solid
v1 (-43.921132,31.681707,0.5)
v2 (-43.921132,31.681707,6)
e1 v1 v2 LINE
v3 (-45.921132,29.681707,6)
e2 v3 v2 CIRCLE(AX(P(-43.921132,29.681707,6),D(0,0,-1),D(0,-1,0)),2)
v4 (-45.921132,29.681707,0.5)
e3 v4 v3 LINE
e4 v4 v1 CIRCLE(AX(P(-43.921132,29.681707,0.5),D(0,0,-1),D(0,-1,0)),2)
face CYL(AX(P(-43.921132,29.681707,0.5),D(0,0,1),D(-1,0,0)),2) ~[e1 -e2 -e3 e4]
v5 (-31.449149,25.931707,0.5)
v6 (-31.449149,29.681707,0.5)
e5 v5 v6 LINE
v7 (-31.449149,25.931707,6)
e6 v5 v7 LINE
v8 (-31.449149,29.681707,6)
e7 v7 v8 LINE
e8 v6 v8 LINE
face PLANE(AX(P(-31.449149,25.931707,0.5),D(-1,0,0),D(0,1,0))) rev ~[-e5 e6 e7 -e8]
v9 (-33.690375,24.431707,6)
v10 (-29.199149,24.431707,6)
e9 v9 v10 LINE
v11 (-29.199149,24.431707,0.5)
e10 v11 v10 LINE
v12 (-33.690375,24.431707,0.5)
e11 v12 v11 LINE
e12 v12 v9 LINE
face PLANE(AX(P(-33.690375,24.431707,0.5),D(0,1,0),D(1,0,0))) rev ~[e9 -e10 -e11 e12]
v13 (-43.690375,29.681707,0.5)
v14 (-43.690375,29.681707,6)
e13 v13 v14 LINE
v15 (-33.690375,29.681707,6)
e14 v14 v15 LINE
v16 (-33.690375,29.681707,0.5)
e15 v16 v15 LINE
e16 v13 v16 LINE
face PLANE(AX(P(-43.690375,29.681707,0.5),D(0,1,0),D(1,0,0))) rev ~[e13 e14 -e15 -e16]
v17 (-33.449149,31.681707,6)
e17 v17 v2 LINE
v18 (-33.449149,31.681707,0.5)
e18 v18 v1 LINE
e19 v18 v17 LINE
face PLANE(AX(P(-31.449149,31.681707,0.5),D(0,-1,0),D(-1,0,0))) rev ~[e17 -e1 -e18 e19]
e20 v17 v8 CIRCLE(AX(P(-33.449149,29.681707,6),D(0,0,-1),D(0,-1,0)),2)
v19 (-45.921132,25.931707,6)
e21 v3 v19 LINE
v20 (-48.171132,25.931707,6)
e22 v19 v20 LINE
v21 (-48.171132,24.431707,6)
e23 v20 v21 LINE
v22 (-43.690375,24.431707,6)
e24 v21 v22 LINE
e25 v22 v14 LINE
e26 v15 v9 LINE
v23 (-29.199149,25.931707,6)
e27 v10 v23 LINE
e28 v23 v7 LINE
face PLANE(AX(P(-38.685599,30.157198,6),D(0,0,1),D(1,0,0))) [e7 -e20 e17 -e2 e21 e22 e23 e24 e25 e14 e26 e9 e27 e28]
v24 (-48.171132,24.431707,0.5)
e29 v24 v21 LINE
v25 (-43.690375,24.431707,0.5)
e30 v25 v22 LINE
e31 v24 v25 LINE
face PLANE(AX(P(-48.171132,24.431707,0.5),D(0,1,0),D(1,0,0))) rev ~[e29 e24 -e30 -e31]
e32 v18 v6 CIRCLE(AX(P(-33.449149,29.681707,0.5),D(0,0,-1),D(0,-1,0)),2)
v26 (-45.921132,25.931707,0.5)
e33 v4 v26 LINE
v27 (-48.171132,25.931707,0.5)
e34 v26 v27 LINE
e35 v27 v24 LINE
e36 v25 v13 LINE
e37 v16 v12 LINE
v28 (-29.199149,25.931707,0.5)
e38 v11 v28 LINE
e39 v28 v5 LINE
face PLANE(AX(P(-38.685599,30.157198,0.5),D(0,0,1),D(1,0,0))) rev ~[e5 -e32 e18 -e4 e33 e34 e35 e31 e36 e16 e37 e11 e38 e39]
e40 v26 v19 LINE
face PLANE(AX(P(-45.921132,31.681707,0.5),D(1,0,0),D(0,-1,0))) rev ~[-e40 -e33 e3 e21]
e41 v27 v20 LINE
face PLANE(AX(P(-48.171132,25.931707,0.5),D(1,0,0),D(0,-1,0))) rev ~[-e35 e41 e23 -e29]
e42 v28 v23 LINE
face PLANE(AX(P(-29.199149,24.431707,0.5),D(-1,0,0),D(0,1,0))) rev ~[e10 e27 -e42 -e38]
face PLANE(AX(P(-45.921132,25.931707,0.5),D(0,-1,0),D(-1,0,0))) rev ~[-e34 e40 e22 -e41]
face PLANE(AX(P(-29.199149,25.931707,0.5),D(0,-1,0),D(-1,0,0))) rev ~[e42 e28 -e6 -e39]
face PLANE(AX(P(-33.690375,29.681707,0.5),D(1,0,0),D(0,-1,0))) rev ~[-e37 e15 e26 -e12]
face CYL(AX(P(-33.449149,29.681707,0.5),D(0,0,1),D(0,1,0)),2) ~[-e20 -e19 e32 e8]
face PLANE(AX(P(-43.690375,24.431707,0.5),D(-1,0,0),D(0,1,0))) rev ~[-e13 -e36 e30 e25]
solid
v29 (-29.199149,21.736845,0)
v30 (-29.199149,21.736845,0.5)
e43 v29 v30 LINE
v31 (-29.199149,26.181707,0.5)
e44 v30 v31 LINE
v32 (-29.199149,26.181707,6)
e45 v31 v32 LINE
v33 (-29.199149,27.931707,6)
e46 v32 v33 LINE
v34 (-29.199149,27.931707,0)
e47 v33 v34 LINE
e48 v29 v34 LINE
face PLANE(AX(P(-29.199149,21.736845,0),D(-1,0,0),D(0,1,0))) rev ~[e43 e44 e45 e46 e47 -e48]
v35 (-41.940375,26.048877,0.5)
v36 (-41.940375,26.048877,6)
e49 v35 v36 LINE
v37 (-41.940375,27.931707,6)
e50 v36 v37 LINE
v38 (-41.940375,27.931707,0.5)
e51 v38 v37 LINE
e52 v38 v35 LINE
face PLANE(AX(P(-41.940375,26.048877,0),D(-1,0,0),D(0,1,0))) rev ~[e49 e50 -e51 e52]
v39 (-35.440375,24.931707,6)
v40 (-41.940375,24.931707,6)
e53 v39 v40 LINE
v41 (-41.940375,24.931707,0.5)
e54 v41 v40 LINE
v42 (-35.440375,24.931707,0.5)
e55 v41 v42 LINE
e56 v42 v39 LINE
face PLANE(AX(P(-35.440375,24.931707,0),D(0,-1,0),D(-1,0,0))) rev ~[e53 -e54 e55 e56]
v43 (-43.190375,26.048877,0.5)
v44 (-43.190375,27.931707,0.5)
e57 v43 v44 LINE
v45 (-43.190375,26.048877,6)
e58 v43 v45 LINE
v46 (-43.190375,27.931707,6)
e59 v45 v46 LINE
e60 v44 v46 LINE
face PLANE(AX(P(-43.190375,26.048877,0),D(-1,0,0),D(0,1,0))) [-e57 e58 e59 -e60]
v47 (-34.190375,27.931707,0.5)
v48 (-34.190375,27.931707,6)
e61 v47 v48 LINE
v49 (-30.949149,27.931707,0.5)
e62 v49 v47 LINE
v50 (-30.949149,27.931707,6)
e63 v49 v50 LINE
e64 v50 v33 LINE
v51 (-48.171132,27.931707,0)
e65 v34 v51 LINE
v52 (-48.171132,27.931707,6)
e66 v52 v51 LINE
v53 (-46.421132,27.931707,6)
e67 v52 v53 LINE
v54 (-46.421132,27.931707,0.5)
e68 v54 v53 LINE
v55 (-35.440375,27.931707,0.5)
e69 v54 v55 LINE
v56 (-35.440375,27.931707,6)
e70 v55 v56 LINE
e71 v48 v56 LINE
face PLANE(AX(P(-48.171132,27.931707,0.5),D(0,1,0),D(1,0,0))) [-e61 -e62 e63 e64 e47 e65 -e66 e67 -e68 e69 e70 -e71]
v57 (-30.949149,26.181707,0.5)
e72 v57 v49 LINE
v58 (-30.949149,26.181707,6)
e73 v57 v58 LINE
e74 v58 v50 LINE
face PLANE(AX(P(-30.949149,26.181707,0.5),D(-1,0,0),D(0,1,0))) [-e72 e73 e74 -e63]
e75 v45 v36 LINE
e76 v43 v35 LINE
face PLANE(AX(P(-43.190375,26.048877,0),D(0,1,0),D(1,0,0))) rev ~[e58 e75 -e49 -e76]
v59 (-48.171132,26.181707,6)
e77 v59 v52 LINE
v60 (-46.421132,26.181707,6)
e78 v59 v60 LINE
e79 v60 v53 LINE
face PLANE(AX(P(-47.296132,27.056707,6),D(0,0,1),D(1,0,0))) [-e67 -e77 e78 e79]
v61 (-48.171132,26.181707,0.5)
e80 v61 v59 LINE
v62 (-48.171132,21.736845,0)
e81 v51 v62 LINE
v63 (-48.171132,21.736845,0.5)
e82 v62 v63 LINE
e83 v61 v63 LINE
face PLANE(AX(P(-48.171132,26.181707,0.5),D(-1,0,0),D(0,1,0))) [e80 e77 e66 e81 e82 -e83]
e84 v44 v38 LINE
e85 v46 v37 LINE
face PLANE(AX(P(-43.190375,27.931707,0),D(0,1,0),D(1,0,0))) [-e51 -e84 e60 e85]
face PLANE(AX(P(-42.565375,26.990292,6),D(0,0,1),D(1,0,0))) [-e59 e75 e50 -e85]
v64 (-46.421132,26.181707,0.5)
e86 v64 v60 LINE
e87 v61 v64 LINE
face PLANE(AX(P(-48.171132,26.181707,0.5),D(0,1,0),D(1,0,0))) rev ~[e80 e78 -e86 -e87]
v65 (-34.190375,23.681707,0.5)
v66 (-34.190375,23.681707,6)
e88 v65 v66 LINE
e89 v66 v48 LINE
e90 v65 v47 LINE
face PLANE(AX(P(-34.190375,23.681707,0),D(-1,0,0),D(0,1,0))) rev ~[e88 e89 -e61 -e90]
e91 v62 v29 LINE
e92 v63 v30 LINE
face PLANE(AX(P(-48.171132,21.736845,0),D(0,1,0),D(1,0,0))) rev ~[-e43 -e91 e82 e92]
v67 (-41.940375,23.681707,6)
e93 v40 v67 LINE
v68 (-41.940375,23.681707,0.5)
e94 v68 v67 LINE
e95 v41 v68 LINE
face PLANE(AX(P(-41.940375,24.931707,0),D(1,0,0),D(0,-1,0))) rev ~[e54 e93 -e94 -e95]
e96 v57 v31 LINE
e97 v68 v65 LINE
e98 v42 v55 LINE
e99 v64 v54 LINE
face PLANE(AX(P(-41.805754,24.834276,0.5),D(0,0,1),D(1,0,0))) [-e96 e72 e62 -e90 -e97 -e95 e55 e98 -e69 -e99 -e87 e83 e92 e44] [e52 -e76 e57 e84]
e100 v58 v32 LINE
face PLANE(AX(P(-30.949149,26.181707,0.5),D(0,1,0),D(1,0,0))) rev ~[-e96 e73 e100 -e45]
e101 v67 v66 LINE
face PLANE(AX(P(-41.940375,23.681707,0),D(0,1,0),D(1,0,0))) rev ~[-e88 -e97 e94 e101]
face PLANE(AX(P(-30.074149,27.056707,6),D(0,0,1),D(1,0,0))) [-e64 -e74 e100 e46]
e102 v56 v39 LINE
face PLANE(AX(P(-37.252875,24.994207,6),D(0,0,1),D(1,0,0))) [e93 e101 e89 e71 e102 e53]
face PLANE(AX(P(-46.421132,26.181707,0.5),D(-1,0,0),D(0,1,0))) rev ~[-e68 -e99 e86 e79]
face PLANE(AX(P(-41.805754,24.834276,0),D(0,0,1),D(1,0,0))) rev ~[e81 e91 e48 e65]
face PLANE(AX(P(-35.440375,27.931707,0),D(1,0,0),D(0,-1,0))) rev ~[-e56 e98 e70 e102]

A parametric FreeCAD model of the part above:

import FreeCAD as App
import Part
import Sketcher


def edges_at(feature, points):
    """Names of the edges that pass closest to the given points."""
    edges = feature.Shape.Edges
    near = lambda p: min(range(len(edges)), key=lambda i: edges[i].distToShape(Part.Vertex(*p))[0])
    return sorted({f"Edge{near(p) + 1}" for p in points})


def add_polygon(sketch, points):
    """Adds a closed chain of lines whose ends are joined by coincident constraints."""
    first, n = sketch.GeometryCount, len(points)
    for a, b in zip(points, points[1:] + points[:1]):
        sketch.addGeometry(Part.LineSegment(App.Vector(*a, 0), App.Vector(*b, 0)), False)
    for i in range(n):
        sketch.addConstraint(Sketcher.Constraint("Coincident", first + i, 2, first + (i + 1) % n, 1))

doc = App.newDocument("Part")
body = doc.addObject("PartDesign::Body", "Body")

sketch1 = body.newObject("Sketcher::SketchObject", "Sketch")
sketch1.AttachmentSupport = (doc.getObject("XY_Plane"), [""])
sketch1.MapMode = "FlatFace"
add_polygon(sketch1, [(-35.440375, 27.931707), (-41.940375, 27.931707), (-41.940375, 24.931707), (-35.440375, 24.931707)])
sketch1.addConstraint(Sketcher.Constraint("Horizontal", 0))
sketch1.addConstraint(Sketcher.Constraint("Vertical", 1))
sketch1.addConstraint(Sketcher.Constraint("Horizontal", 2))
sketch1.addConstraint(Sketcher.Constraint("Vertical", 3))
sketch1.addConstraint(Sketcher.Constraint("DistanceY", 1, 2, 1, 1, 3.0))
sketch1.addConstraint(Sketcher.Constraint("DistanceX", 0, 2, 0, 1, 6.5))
sketch1.addConstraint(Sketcher.Constraint("DistanceX", 0, 2, -1, 1, 41.940375))
sketch1.addConstraint(Sketcher.Constraint("DistanceY", -1, 1, 0, 2, 27.931707))
pad1 = body.newObject("PartDesign::Pad", "Pad")
pad1.Profile = sketch1
pad1.Length = 0.5

sketch2 = body.newObject("Sketcher::SketchObject", "Sketch001")
sketch2.AttachmentSupport = (doc.getObject("XY_Plane"), [""])
sketch2.MapMode = "FlatFace"
add_polygon(sketch2, [(-34.190375, 27.931707), (-35.440375, 27.931707), (-35.440375, 24.931707), (-41.940375, 24.931707), (-41.940375, 23.681707), (-34.190375, 23.681707)])
add_polygon(sketch2, [(-43.190375, 27.931707), (-43.190375, 26.048877), (-41.940375, 26.048877), (-41.940375, 27.931707)])
sketch2.addConstraint(Sketcher.Constraint("Horizontal", 0))
sketch2.addConstraint(Sketcher.Constraint("Vertical", 1))
sketch2.addConstraint(Sketcher.Constraint("Horizontal", 2))
sketch2.addConstraint(Sketcher.Constraint("Vertical", 3))
sketch2.addConstraint(Sketcher.Constraint("Horizontal", 4))
sketch2.addConstraint(Sketcher.Constraint("Vertical", 5))
sketch2.addConstraint(Sketcher.Constraint("Vertical", 6))
sketch2.addConstraint(Sketcher.Constraint("Horizontal", 7))
sketch2.addConstraint(Sketcher.Constraint("Vertical", 8))
sketch2.addConstraint(Sketcher.Constraint("Horizontal", 9))
sketch2.addConstraint(Sketcher.Constraint("Horizontal", 5, 2, 8, 2))
sketch2.addConstraint(Sketcher.Constraint("Vertical", 3, 2, 7, 2))
sketch2.addConstraint(Sketcher.Constraint("Equal", 0, 7))
sketch2.addConstraint(Sketcher.Constraint("Equal", 9, 3))
sketch2.addConstraint(Sketcher.Constraint("DistanceY", 1, 2, 1, 1, 3.0))
sketch2.addConstraint(Sketcher.Constraint("DistanceX", 2, 2, 2, 1, 6.5))
sketch2.addConstraint(Sketcher.Constraint("DistanceX", 6, 2, 5, 2, 9.0))
sketch2.addConstraint(Sketcher.Constraint("DistanceY", 6, 2, 6, 1, 1.882829))
sketch2.addConstraint(Sketcher.Constraint("DistanceX", 0, 2, -1, 1, 35.440375))
sketch2.addConstraint(Sketcher.Constraint("DistanceY", -1, 1, 0, 2, 27.931707))
pad2 = body.newObject("PartDesign::Pad", "Pad001")
pad2.Profile = sketch2
pad2.Length = 6

sketch3 = body.newObject("Sketcher::SketchObject", "Sketch002")
sketch3.AttachmentSupport = (doc.getObject("XY_Plane"), [""])
sketch3.MapMode = "FlatFace"
add_polygon(sketch3, [(-48.171132, 27.931707), (-48.171132, 21.736845), (-29.199149, 21.736845), (-29.199149, 27.931707)])
sketch3.addConstraint(Sketcher.Constraint("Vertical", 0))
sketch3.addConstraint(Sketcher.Constraint("Horizontal", 1))
sketch3.addConstraint(Sketcher.Constraint("Vertical", 2))
sketch3.addConstraint(Sketcher.Constraint("Horizontal", 3))
sketch3.addConstraint(Sketcher.Constraint("DistanceX", 1, 1, 1, 2, 18.971983))
sketch3.addConstraint(Sketcher.Constraint("DistanceY", 0, 2, 0, 1, 6.194862))
sketch3.addConstraint(Sketcher.Constraint("DistanceX", 1, 2, -1, 1, 29.199149))
sketch3.addConstraint(Sketcher.Constraint("DistanceY", -1, 1, 0, 2, 21.736845))
pad3 = body.newObject("PartDesign::Pad", "Pad002")
pad3.Profile = sketch3
pad3.Length = 0.5

sketch4 = body.newObject("Sketcher::SketchObject", "Sketch003")
sketch4.AttachmentSupport = (doc.getObject("XY_Plane"), [""])
sketch4.MapMode = "FlatFace"
sketch4.AttachmentOffset = App.Placement(App.Vector(0, 0, 0.5), App.Rotation())
add_polygon(sketch4, [(-48.171132, 27.931707), (-48.171132, 26.181707), (-46.421132, 26.181707), (-46.421132, 27.931707)])
add_polygon(sketch4, [(-30.949149, 27.931707), (-30.949149, 26.181707), (-29.199149, 26.181707), (-29.199149, 27.931707)])
sketch4.addConstraint(Sketcher.Constraint("Vertical", 0))
sketch4.addConstraint(Sketcher.Constraint("Horizontal", 1))
sketch4.addConstraint(Sketcher.Constraint("Vertical", 2))
sketch4.addConstraint(Sketcher.Constraint("Horizontal", 3))
sketch4.addConstraint(Sketcher.Constraint("Vertical", 4))
sketch4.addConstraint(Sketcher.Constraint("Horizontal", 5))
sketch4.addConstraint(Sketcher.Constraint("Vertical", 6))
sketch4.addConstraint(Sketcher.Constraint("Horizontal", 7))
sketch4.addConstraint(Sketcher.Constraint("Horizontal", 1, 2, 4, 2))
sketch4.addConstraint(Sketcher.Constraint("Horizontal", 3, 2, 6, 2))
sketch4.addConstraint(Sketcher.Constraint("Equal", 3, 5))
sketch4.addConstraint(Sketcher.Constraint("Equal", 7, 0))
sketch4.addConstraint(Sketcher.Constraint("DistanceX", 1, 1, 1, 2, 1.75))
sketch4.addConstraint(Sketcher.Constraint("DistanceX", 4, 2, -1, 1, 30.949149))
sketch4.addConstraint(Sketcher.Constraint("DistanceX", 0, 2, -1, 1, 48.171132))
sketch4.addConstraint(Sketcher.Constraint("DistanceY", -1, 1, 0, 2, 26.181707))
pad4 = body.newObject("PartDesign::Pad", "Pad003")
pad4.Profile = sketch4
pad4.Length = 5.5
body2 = doc.addObject("PartDesign::Body", "Body001")

sketch5 = body2.newObject("Sketcher::SketchObject", "Sketch004")
sketch5.AttachmentSupport = (doc.getObject("XY_Plane001"), [""])
sketch5.MapMode = "FlatFace"
sketch5.AttachmentOffset = App.Placement(App.Vector(0, 0, 0.5), App.Rotation())
add_polygon(sketch5, [(-45.921132, 31.681707), (-45.921132, 25.931707), (-48.171132, 25.931707), (-48.171132, 24.431707), (-43.690375, 24.431707), (-43.690375, 29.681707), (-33.690375, 29.681707), (-33.690375, 24.431707), (-29.199149, 24.431707), (-29.199149, 25.931707), (-31.449149, 25.931707), (-31.449149, 31.681707)])
sketch5.addConstraint(Sketcher.Constraint("Vertical", 0))
sketch5.addConstraint(Sketcher.Constraint("Horizontal", 1))
sketch5.addConstraint(Sketcher.Constraint("Vertical", 2))
sketch5.addConstraint(Sketcher.Constraint("Horizontal", 3))
sketch5.addConstraint(Sketcher.Constraint("Vertical", 4))
sketch5.addConstraint(Sketcher.Constraint("Horizontal", 5))
sketch5.addConstraint(Sketcher.Constraint("Vertical", 6))
sketch5.addConstraint(Sketcher.Constraint("Horizontal", 7))
sketch5.addConstraint(Sketcher.Constraint("Vertical", 8))
sketch5.addConstraint(Sketcher.Constraint("Horizontal", 9))
sketch5.addConstraint(Sketcher.Constraint("Vertical", 10))
sketch5.addConstraint(Sketcher.Constraint("Horizontal", 11))
sketch5.addConstraint(Sketcher.Constraint("Horizontal", 3, 2, 6, 2))
sketch5.addConstraint(Sketcher.Constraint("Horizontal", 1, 2, 8, 2))
sketch5.addConstraint(Sketcher.Constraint("Equal", 1, 9))
sketch5.addConstraint(Sketcher.Constraint("DistanceX", 5, 1, 5, 2, 10.0))
sketch5.addConstraint(Sketcher.Constraint("DistanceY", 2, 2, 2, 1, 1.5))
sketch5.addConstraint(Sketcher.Constraint("DistanceY", 5, 2, 10, 2, 2.0))
sketch5.addConstraint(Sketcher.Constraint("DistanceX", 1, 2, 1, 1, 2.25))
sketch5.addConstraint(Sketcher.Constraint("DistanceY", 0, 2, 0, 1, 5.75))
sketch5.addConstraint(Sketcher.Constraint("DistanceX", 3, 1, 3, 2, 4.480757))
sketch5.addConstraint(Sketcher.Constraint("DistanceX", 7, 1, 7, 2, 4.491226))
sketch5.addConstraint(Sketcher.Constraint("DistanceX", 7, 2, -1, 1, 29.199149))
sketch5.addConstraint(Sketcher.Constraint("DistanceY", -1, 1, 0, 2, 25.931707))
pad5 = body2.newObject("PartDesign::Pad", "Pad004")
pad5.Profile = sketch5
pad5.Length = 5.5
doc.recompute()

fillet = body2.newObject("PartDesign::Fillet", "Fillet")
fillet.Base = (pad5, edges_at(pad5, [(-45.921, 31.682, 3.25)]))
fillet.Radius = 2
doc.recompute()

fillet2 = body2.newObject("PartDesign::Fillet", "Fillet001")
fillet2.Base = (fillet, edges_at(fillet, [(-31.449, 31.682, 3.25)]))
fillet2.Radius = 2

doc.recompute()
